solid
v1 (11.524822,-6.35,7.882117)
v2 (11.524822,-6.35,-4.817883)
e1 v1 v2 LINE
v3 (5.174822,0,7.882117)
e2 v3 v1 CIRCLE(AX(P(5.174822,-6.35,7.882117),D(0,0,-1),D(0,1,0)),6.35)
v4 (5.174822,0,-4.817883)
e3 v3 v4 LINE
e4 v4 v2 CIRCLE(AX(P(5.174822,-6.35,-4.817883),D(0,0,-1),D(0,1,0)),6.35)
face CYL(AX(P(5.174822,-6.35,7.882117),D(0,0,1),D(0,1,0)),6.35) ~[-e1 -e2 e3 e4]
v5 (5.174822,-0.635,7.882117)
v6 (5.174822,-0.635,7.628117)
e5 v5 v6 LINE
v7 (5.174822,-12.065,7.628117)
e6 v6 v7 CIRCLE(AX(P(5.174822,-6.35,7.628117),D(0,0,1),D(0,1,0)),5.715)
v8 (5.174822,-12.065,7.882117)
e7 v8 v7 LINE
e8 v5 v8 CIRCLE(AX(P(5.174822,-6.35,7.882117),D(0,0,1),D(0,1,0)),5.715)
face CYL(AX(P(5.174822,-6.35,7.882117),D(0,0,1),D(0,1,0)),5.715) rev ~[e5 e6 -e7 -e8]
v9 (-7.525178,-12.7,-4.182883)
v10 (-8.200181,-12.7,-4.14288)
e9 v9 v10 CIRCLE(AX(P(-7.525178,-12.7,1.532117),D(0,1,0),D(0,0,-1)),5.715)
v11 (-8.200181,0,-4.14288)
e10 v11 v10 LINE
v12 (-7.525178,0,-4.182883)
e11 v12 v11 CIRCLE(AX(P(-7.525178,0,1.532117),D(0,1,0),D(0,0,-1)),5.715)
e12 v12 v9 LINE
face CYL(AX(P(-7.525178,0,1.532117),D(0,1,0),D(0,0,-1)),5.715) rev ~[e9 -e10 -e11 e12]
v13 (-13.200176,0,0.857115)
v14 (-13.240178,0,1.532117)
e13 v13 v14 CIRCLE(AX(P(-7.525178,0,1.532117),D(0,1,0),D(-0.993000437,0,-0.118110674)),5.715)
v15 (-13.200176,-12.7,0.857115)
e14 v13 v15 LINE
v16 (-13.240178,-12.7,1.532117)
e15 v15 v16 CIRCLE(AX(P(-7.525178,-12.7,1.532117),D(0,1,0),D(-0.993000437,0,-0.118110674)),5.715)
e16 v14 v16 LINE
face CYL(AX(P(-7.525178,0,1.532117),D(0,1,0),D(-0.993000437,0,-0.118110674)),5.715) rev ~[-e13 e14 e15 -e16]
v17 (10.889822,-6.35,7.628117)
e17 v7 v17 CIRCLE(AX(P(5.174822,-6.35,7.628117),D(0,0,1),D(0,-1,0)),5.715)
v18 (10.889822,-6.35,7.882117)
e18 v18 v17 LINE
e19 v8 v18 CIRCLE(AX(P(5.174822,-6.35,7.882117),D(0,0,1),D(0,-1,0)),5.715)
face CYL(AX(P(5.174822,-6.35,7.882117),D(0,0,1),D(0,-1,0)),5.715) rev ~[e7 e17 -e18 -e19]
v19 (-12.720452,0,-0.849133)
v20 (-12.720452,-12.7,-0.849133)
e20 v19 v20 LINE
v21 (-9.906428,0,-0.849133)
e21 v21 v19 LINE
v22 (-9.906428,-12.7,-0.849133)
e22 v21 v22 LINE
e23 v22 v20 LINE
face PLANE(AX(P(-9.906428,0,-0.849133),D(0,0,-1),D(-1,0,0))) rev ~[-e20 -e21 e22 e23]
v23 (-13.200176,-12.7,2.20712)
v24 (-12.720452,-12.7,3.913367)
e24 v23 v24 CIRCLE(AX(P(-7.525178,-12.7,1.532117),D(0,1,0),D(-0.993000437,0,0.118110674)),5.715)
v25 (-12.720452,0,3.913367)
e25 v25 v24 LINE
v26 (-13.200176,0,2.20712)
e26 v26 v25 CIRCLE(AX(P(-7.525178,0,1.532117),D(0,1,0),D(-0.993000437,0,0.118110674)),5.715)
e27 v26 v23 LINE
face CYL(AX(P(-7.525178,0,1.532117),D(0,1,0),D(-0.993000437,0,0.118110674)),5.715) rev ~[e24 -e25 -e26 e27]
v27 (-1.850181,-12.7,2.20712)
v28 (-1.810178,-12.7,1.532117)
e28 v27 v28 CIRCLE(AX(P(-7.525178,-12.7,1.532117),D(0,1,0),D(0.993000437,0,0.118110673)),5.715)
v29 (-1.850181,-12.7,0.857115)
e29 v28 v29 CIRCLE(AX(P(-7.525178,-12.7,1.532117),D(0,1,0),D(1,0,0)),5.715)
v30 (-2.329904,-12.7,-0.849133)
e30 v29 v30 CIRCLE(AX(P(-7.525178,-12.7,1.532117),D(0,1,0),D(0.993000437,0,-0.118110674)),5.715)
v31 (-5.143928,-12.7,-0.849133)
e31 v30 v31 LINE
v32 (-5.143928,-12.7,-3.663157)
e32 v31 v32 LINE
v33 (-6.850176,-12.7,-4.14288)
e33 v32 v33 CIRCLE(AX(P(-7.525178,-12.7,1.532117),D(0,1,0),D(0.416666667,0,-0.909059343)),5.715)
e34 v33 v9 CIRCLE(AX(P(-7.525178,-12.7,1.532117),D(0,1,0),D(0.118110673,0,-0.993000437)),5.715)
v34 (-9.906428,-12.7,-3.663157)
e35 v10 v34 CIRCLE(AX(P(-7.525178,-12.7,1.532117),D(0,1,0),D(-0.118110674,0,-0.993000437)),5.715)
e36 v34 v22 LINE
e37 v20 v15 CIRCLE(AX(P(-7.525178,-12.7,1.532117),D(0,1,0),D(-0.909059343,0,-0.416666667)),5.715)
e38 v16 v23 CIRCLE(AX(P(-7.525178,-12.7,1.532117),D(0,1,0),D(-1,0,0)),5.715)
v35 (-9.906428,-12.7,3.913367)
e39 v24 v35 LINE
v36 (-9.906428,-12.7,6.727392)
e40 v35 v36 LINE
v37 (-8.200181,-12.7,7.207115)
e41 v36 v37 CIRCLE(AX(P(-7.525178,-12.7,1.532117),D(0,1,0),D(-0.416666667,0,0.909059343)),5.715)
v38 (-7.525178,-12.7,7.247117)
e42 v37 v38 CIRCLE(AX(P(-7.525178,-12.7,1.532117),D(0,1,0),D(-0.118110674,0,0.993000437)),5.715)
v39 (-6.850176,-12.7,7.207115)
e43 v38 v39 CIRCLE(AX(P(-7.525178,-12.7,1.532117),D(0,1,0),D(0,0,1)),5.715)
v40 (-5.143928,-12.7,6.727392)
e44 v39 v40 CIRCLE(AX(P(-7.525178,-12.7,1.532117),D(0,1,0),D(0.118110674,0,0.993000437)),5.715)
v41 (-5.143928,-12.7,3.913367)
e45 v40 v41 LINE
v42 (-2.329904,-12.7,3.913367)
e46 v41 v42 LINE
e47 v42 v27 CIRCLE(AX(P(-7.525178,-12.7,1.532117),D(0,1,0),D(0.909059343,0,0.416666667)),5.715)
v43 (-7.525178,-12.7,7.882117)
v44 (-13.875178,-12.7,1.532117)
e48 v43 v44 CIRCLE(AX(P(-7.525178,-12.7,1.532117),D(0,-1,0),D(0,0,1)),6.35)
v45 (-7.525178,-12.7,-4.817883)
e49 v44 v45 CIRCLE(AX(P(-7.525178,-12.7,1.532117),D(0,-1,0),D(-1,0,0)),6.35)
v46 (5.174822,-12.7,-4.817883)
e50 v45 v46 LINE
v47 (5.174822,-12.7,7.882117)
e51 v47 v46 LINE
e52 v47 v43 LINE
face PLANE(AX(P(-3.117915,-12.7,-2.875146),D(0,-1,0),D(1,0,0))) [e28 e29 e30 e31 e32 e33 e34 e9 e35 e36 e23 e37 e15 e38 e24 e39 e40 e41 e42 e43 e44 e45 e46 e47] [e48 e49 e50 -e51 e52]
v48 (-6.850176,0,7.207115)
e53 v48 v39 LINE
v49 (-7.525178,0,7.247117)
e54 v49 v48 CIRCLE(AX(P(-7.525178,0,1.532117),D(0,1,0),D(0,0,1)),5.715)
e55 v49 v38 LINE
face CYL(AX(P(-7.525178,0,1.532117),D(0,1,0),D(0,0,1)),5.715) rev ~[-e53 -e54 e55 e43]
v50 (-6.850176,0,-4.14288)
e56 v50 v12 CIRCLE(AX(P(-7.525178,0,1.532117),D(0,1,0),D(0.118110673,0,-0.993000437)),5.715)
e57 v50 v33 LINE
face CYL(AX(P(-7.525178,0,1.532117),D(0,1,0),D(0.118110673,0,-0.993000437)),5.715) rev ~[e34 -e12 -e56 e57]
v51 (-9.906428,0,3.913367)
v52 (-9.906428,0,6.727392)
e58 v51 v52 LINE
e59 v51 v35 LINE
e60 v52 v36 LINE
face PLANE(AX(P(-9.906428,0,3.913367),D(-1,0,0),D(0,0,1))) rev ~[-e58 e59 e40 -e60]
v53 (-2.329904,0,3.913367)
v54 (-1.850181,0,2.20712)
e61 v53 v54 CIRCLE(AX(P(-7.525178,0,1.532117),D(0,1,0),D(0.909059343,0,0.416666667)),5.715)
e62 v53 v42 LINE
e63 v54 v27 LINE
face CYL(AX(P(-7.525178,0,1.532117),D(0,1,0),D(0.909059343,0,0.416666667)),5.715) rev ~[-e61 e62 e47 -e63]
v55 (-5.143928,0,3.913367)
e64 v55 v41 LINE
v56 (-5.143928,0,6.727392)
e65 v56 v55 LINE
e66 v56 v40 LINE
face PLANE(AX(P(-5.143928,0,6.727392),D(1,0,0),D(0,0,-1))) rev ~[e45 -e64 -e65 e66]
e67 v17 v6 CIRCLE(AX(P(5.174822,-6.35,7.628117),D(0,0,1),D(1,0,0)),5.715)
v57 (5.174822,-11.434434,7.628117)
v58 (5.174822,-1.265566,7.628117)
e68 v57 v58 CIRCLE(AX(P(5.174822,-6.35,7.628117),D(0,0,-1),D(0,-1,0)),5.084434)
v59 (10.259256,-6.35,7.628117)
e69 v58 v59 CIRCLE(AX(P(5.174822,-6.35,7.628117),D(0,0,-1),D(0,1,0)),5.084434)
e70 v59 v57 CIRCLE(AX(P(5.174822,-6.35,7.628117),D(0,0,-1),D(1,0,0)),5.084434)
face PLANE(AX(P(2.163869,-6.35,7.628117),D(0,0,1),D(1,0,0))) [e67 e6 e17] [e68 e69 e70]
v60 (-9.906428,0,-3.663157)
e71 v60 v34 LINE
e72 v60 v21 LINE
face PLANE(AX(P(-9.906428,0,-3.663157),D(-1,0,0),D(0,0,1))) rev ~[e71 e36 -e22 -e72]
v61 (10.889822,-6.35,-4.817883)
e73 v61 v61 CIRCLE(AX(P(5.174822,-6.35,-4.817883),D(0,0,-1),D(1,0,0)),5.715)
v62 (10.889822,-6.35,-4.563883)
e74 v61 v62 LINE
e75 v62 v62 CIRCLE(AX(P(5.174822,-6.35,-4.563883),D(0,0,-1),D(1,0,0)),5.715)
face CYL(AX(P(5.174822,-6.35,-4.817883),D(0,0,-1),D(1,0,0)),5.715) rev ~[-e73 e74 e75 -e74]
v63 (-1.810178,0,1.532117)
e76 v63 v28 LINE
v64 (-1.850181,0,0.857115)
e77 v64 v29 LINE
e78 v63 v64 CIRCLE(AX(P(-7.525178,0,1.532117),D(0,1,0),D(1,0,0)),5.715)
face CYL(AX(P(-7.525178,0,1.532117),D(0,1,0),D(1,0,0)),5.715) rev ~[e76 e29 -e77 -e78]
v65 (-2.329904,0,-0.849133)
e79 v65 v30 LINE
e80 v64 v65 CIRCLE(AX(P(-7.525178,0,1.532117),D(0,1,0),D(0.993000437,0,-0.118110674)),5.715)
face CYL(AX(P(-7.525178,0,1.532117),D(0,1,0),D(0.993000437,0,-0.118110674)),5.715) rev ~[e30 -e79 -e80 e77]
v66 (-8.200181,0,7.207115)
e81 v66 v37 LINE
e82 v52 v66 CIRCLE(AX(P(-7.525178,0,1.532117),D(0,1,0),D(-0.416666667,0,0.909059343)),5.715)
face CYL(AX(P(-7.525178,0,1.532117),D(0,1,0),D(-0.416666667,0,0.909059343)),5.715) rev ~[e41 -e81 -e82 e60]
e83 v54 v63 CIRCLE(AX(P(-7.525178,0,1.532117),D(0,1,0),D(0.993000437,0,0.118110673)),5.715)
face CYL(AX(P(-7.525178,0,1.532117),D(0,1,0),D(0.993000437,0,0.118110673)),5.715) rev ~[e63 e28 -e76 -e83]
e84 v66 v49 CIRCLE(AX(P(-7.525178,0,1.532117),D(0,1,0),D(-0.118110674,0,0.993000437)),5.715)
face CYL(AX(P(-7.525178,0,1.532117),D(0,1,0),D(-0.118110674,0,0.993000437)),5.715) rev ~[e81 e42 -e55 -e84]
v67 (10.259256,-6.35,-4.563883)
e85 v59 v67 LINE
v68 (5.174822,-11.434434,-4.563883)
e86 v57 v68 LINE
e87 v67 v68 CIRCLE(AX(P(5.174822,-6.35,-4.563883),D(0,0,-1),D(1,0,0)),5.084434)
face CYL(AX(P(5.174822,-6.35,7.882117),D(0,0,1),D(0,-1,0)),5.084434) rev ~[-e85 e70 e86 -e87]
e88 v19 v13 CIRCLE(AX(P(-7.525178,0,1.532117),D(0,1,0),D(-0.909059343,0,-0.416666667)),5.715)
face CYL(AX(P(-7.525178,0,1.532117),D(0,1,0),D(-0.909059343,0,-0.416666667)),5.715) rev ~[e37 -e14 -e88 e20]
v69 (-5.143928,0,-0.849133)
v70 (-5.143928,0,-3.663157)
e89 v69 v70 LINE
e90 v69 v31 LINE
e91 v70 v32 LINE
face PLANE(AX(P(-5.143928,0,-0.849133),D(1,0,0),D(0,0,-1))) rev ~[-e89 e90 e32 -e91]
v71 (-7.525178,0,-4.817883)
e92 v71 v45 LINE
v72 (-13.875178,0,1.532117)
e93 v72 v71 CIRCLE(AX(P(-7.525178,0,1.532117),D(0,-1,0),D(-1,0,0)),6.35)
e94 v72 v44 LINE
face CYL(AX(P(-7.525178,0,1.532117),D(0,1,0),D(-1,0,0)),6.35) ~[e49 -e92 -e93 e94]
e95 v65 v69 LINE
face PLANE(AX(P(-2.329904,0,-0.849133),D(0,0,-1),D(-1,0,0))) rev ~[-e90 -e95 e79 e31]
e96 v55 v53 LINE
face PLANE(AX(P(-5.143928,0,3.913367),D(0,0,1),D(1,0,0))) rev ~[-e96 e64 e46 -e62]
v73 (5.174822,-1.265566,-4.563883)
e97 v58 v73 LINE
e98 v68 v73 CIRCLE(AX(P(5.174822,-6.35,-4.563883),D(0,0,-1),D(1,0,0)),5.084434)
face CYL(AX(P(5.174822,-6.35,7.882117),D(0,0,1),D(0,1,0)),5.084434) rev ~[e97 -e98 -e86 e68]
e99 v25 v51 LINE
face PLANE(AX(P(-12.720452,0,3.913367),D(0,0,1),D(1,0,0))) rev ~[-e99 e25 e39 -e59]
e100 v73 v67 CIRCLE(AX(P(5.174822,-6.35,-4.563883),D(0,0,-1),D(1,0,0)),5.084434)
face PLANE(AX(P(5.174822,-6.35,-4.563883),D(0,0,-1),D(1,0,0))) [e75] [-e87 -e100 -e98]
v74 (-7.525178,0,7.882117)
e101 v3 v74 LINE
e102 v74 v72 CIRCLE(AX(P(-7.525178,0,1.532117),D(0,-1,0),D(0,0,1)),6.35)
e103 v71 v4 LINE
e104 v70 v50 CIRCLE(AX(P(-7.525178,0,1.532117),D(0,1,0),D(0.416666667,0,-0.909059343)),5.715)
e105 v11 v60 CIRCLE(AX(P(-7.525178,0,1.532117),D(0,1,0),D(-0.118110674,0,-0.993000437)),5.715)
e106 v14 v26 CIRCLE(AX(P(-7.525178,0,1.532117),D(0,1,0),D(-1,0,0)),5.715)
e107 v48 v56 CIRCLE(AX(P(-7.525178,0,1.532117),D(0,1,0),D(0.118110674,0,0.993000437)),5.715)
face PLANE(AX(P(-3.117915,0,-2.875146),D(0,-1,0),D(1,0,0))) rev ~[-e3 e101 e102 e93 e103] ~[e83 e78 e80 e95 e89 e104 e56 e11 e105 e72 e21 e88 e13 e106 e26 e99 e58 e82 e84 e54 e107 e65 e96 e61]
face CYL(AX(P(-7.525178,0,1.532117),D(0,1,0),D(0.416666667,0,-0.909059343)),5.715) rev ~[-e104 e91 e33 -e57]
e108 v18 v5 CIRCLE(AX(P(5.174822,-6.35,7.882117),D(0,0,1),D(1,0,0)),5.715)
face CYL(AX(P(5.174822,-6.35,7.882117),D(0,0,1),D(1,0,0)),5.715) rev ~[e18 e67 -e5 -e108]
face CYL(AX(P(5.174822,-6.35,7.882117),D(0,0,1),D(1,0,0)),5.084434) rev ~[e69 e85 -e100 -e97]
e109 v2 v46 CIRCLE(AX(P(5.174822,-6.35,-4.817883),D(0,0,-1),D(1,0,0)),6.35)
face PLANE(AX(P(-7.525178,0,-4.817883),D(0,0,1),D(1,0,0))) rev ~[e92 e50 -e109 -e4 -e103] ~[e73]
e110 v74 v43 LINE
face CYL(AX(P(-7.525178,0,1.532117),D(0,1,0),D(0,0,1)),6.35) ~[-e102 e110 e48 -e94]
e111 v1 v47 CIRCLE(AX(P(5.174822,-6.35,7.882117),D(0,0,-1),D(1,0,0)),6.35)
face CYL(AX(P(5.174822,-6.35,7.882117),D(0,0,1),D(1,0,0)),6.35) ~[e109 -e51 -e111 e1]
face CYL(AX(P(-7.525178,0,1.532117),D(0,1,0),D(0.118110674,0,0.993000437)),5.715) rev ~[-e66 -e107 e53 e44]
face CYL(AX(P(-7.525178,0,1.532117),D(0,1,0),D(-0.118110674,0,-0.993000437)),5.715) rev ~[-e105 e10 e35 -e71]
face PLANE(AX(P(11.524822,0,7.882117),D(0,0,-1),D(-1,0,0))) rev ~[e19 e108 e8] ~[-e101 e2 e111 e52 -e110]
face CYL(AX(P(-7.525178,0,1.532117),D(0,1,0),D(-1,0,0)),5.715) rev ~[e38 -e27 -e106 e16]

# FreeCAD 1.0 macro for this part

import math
import FreeCAD as App
import Part
import Sketcher
Q = App.Units.Quantity

doc = App.newDocument("Part")
params = doc.addObject("Spreadsheet::Sheet", "Params")
for row, (alias, value) in enumerate([
    ("sketch1_radius", "0.25 in"),
    ("sketch1_radius2", "0.225 in"),
    ("sketch1_width", "0.75 in"),
    ("pad1_length", "0.5 in"),
    ("sketch2_radius", "0.25 in"),
    ("pocket1_length", "0.5 in"),
    ("sketch3_radius", "0.225 in"),
    ("pocket2_length", "0.01 in"),
    ("sketch4_diameter", "0.45 in"),
    ("pocket3_length", "0.01 in"),
], start=1):
    params.set(f"A{row}", alias)
    params.set(f"B{row}", "=" + value)
    params.setAlias(f"B{row}", alias)

body = doc.addObject("PartDesign::Body", "Body")

sketch1 = body.newObject("Sketcher::SketchObject", "Sketch")
sketch1.AttachmentSupport = (doc.getObject("XZ_Plane"), [""])
sketch1.MapMode = "FlatFace"
sketch1.addGeometry(Part.ArcOfCircle(Part.Circle(App.Vector(-7.525178, 1.532117, 0), App.Vector(0, 0, 1), 6.35), math.radians(90), math.radians(180)), False)
sketch1.addGeometry(Part.ArcOfCircle(Part.Circle(App.Vector(-7.525178, 1.532117, 0), App.Vector(0, 0, 1), 6.35), math.radians(180), math.radians(270)), False)
sketch1.addGeometry(Part.LineSegment(App.Vector(-7.525178, -4.817883, 0), App.Vector(11.524822, -4.817883, 0)), False)
sketch1.addGeometry(Part.LineSegment(App.Vector(11.524822, -4.817883, 0), App.Vector(11.524822, 7.882117, 0)), False)
sketch1.addGeometry(Part.LineSegment(App.Vector(11.524822, 7.882117, 0), App.Vector(-7.525178, 7.882117, 0)), False)
sketch1.addGeometry(Part.ArcOfCircle(Part.Circle(App.Vector(-7.525178, 1.532117, 0), App.Vector(0, 0, 1), 5.715), math.radians(0), math.radians(6.783077)), False)
sketch1.addGeometry(Part.ArcOfCircle(Part.Circle(App.Vector(-7.525178, 1.532117, 0), App.Vector(0, 0, 1), 5.715), math.radians(-6.783077), math.radians(0)), False)
sketch1.addGeometry(Part.ArcOfCircle(Part.Circle(App.Vector(-7.525178, 1.532117, 0), App.Vector(0, 0, 1), 5.715), math.radians(-24.624318), math.radians(-6.783077)), False)
sketch1.addGeometry(Part.LineSegment(App.Vector(-2.329904, -0.849133, 0), App.Vector(-5.143928, -0.849133, 0)), False)
sketch1.addGeometry(Part.LineSegment(App.Vector(-5.143928, -0.849133, 0), App.Vector(-5.143928, -3.663157, 0)), False)
sketch1.addGeometry(Part.ArcOfCircle(Part.Circle(App.Vector(-7.525178, 1.532117, 0), App.Vector(0, 0, 1), 5.715), math.radians(-83.216923), math.radians(-65.375682)), False)
sketch1.addGeometry(Part.ArcOfCircle(Part.Circle(App.Vector(-7.525178, 1.532117, 0), App.Vector(0, 0, 1), 5.715), math.radians(-90), math.radians(-83.216923)), False)
sketch1.addGeometry(Part.ArcOfCircle(Part.Circle(App.Vector(-7.525178, 1.532117, 0), App.Vector(0, 0, 1), 5.715), math.radians(-96.783077), math.radians(-90)), False)
sketch1.addGeometry(Part.ArcOfCircle(Part.Circle(App.Vector(-7.525178, 1.532117, 0), App.Vector(0, 0, 1), 5.715), math.radians(-114.624318), math.radians(-96.783077)), False)
sketch1.addGeometry(Part.LineSegment(App.Vector(-9.906428, -3.663157, 0), App.Vector(-9.906428, -0.849133, 0)), False)
sketch1.addGeometry(Part.LineSegment(App.Vector(-9.906428, -0.849133, 0), App.Vector(-12.720452, -0.849133, 0)), False)
sketch1.addGeometry(Part.ArcOfCircle(Part.Circle(App.Vector(-7.525178, 1.532117, 0), App.Vector(0, 0, 1), 5.715), math.radians(-173.216923), math.radians(-155.375682)), False)
sketch1.addGeometry(Part.ArcOfCircle(Part.Circle(App.Vector(-7.525178, 1.532117, 0), App.Vector(0, 0, 1), 5.715), math.radians(180), math.radians(186.783077)), False)
sketch1.addGeometry(Part.ArcOfCircle(Part.Circle(App.Vector(-7.525178, 1.532117, 0), App.Vector(0, 0, 1), 5.715), math.radians(173.216923), math.radians(180)), False)
sketch1.addGeometry(Part.ArcOfCircle(Part.Circle(App.Vector(-7.525178, 1.532117, 0), App.Vector(0, 0, 1), 5.715), math.radians(155.375682), math.radians(173.216923)), False)
sketch1.addGeometry(Part.LineSegment(App.Vector(-12.720452, 3.913367, 0), App.Vector(-9.906428, 3.913367, 0)), False)
sketch1.addGeometry(Part.LineSegment(App.Vector(-9.906428, 3.913367, 0), App.Vector(-9.906428, 6.727392, 0)), False)
sketch1.addGeometry(Part.ArcOfCircle(Part.Circle(App.Vector(-7.525178, 1.532117, 0), App.Vector(0, 0, 1), 5.715), math.radians(96.783077), math.radians(114.624318)), False)
sketch1.addGeometry(Part.ArcOfCircle(Part.Circle(App.Vector(-7.525178, 1.532117, 0), App.Vector(0, 0, 1), 5.715), math.radians(90), math.radians(96.783077)), False)
sketch1.addGeometry(Part.ArcOfCircle(Part.Circle(App.Vector(-7.525178, 1.532117, 0), App.Vector(0, 0, 1), 5.715), math.radians(83.216923), math.radians(90)), False)
sketch1.addGeometry(Part.ArcOfCircle(Part.Circle(App.Vector(-7.525178, 1.532117, 0), App.Vector(0, 0, 1), 5.715), math.radians(65.375682), math.radians(83.216923)), False)
sketch1.addGeometry(Part.LineSegment(App.Vector(-5.143928, 6.727392, 0), App.Vector(-5.143928, 3.913367, 0)), False)
sketch1.addGeometry(Part.LineSegment(App.Vector(-5.143928, 3.913367, 0), App.Vector(-2.329904, 3.913367, 0)), False)
sketch1.addGeometry(Part.ArcOfCircle(Part.Circle(App.Vector(-7.525178, 1.532117, 0), App.Vector(0, 0, 1), 5.715), math.radians(6.783077), math.radians(24.624318)), False)
sketch1.addConstraint(Sketcher.Constraint("Tangent", 0, 2, 1, 1))
sketch1.addConstraint(Sketcher.Constraint("Tangent", 1, 2, 2, 1))
sketch1.addConstraint(Sketcher.Constraint("Coincident", 2, 2, 3, 1))
sketch1.addConstraint(Sketcher.Constraint("Coincident", 3, 2, 4, 1))
sketch1.addConstraint(Sketcher.Constraint("Tangent", 4, 2, 0, 1))
sketch1.addConstraint(Sketcher.Constraint("Tangent", 5, 1, 6, 2))
sketch1.addConstraint(Sketcher.Constraint("Tangent", 6, 1, 7, 2))
sketch1.addConstraint(Sketcher.Constraint("Coincident", 7, 1, 8, 1))
sketch1.addConstraint(Sketcher.Constraint("Coincident", 8, 2, 9, 1))
sketch1.addConstraint(Sketcher.Constraint("Coincident", 9, 2, 10, 2))
sketch1.addConstraint(Sketcher.Constraint("Tangent", 10, 1, 11, 2))
sketch1.addConstraint(Sketcher.Constraint("Tangent", 11, 1, 12, 2))
sketch1.addConstraint(Sketcher.Constraint("Tangent", 12, 1, 13, 2))
sketch1.addConstraint(Sketcher.Constraint("Coincident", 13, 1, 14, 1))
sketch1.addConstraint(Sketcher.Constraint("Coincident", 14, 2, 15, 1))
sketch1.addConstraint(Sketcher.Constraint("Coincident", 15, 2, 16, 2))
sketch1.addConstraint(Sketcher.Constraint("Tangent", 16, 1, 17, 2))
sketch1.addConstraint(Sketcher.Constraint("Tangent", 17, 1, 18, 2))
sketch1.addConstraint(Sketcher.Constraint("Tangent", 18, 1, 19, 2))
sketch1.addConstraint(Sketcher.Constraint("Coincident", 19, 1, 20, 1))
sketch1.addConstraint(Sketcher.Constraint("Coincident", 20, 2, 21, 1))
sketch1.addConstraint(Sketcher.Constraint("Coincident", 21, 2, 22, 2))
sketch1.addConstraint(Sketcher.Constraint("Tangent", 22, 1, 23, 2))
sketch1.addConstraint(Sketcher.Constraint("Tangent", 23, 1, 24, 2))
sketch1.addConstraint(Sketcher.Constraint("Tangent", 24, 1, 25, 2))
sketch1.addConstraint(Sketcher.Constraint("Coincident", 25, 1, 26, 1))
sketch1.addConstraint(Sketcher.Constraint("Coincident", 26, 2, 27, 1))
sketch1.addConstraint(Sketcher.Constraint("Coincident", 27, 2, 28, 2))
sketch1.addConstraint(Sketcher.Constraint("Tangent", 28, 1, 5, 2))
sketch1.addConstraint(Sketcher.Constraint("Horizontal", 2))
sketch1.addConstraint(Sketcher.Constraint("Vertical", 3))
sketch1.addConstraint(Sketcher.Constraint("Horizontal", 4))
sketch1.addConstraint(Sketcher.Constraint("Horizontal", 8))
sketch1.addConstraint(Sketcher.Constraint("Vertical", 9))
sketch1.addConstraint(Sketcher.Constraint("Vertical", 14))
sketch1.addConstraint(Sketcher.Constraint("Horizontal", 15))
sketch1.addConstraint(Sketcher.Constraint("Horizontal", 20))
sketch1.addConstraint(Sketcher.Constraint("Vertical", 21))
sketch1.addConstraint(Sketcher.Constraint("Vertical", 26))
sketch1.addConstraint(Sketcher.Constraint("Horizontal", 27))
sketch1.addConstraint(Sketcher.Constraint("Coincident", 5, 3, 0, 3))
sketch1.addConstraint(Sketcher.Constraint("Coincident", 7, 3, 0, 3))
sketch1.addConstraint(Sketcher.Constraint("Coincident", 10, 3, 0, 3))
sketch1.addConstraint(Sketcher.Constraint("Coincident", 12, 3, 0, 3))
sketch1.addConstraint(Sketcher.Constraint("Coincident", 16, 3, 0, 3))
sketch1.addConstraint(Sketcher.Constraint("Coincident", 18, 3, 0, 3))
sketch1.addConstraint(Sketcher.Constraint("Coincident", 22, 3, 0, 3))
sketch1.addConstraint(Sketcher.Constraint("Coincident", 24, 3, 0, 3))
sketch1.addConstraint(Sketcher.Constraint("Equal", 0, 1))
sketch1.addConstraint(Sketcher.Constraint("Equal", 7, 10))
sketch1.addConstraint(Sketcher.Constraint("Equal", 12, 13))
sketch1.addConstraint(Sketcher.Constraint("Equal", 13, 16))
sketch1.addConstraint(Sketcher.Constraint("Equal", 18, 19))
sketch1.addConstraint(Sketcher.Constraint("Equal", 19, 22))
sketch1.addConstraint(Sketcher.Constraint("Equal", 24, 25))
sketch1.addConstraint(Sketcher.Constraint("Equal", 25, 28))
sketch1.addConstraint(Sketcher.Constraint("Horizontal", 28, 3, 0, 2))
sketch1.addConstraint(Sketcher.Constraint("Horizontal", 0, 2, 5, 1))
sketch1.addConstraint(Sketcher.Constraint("Horizontal", 10, 1, 12, 1))
sketch1.addConstraint(Sketcher.Constraint("Horizontal", 9, 2, 13, 1))
sketch1.addConstraint(Sketcher.Constraint("Horizontal", 8, 2, 14, 2))
sketch1.addConstraint(Sketcher.Constraint("Horizontal", 6, 1, 16, 1))
sketch1.addConstraint(Sketcher.Constraint("Horizontal", 5, 1, 17, 1))
sketch1.addConstraint(Sketcher.Constraint("Horizontal", 22, 1, 24, 1))
sketch1.addConstraint(Sketcher.Constraint("Horizontal", 21, 2, 25, 1))
sketch1.addConstraint(Sketcher.Constraint("Horizontal", 20, 2, 26, 2))
sketch1.addConstraint(Sketcher.Constraint("Horizontal", 18, 1, 28, 1))
sketch1.addConstraint(Sketcher.Constraint("Vertical", 4, 2, 11, 1))
sketch1.addConstraint(Sketcher.Constraint("Vertical", 16, 1, 18, 1))
sketch1.addConstraint(Sketcher.Constraint("Vertical", 15, 2, 19, 1))
sketch1.addConstraint(Sketcher.Constraint("Vertical", 14, 2, 20, 2))
sketch1.addConstraint(Sketcher.Constraint("Vertical", 12, 1, 22, 1))
sketch1.addConstraint(Sketcher.Constraint("Vertical", 11, 1, 23, 1))
sketch1.addConstraint(Sketcher.Constraint("Equal", 27, 9))
sketch1.addConstraint(Sketcher.Constraint("Radius", 0, Q("0.25 in")))
sketch1.addConstraint(Sketcher.Constraint("Radius", 5, Q("0.225 in")))
sketch1.addConstraint(Sketcher.Constraint("DistanceX", 2, 1, 2, 2, Q("0.75 in")))
sketch1.addConstraint(Sketcher.Constraint("DistanceY", 7, 1, 5, 1, Q("0.09375 in")))
sketch1.addConstraint(Sketcher.Constraint("DistanceX", 0, 3, -1, 1, Q("7.525178 mm")))
sketch1.addConstraint(Sketcher.Constraint("DistanceX", 6, 1, -1, 1, Q("1.850181 mm")))
sketch1.addConstraint(Sketcher.Constraint("DistanceY", 10, 1, -1, 1, Q("4.14288 mm")))
sketch1.addConstraint(Sketcher.Constraint("DistanceX", 12, 1, -1, 1, Q("8.200181 mm")))
sketch1.setExpression("Constraints[74]", "Params.sketch1_radius")
sketch1.setExpression("Constraints[75]", "Params.sketch1_radius2")
sketch1.setExpression("Constraints[76]", "Params.sketch1_width")
pad1 = body.newObject("PartDesign::Pad", "Pad")
pad1.Profile = sketch1
pad1.setExpression("Length", "Params.pad1_length")

sketch2 = body.newObject("Sketcher::SketchObject", "Sketch001")
sketch2.AttachmentSupport = (doc.getObject("XY_Plane"), [""])
sketch2.MapMode = "FlatFace"
sketch2.AttachmentOffset = App.Placement(App.Vector(0, 0, 7.882117), App.Rotation())
sketch2.addGeometry(Part.LineSegment(App.Vector(11.524822, 0, 0), App.Vector(5.174822, 0, 0)), False)
sketch2.addGeometry(Part.ArcOfCircle(Part.Circle(App.Vector(5.174822, -6.35, 0), App.Vector(0, 0, 1), 6.35), math.radians(0), math.radians(90)), False)
sketch2.addGeometry(Part.LineSegment(App.Vector(11.524822, -6.35, 0), App.Vector(11.524822, 0, 0)), False)
sketch2.addGeometry(Part.LineSegment(App.Vector(11.524822, -12.7, 0), App.Vector(11.524822, -6.35, 0)), False)
sketch2.addGeometry(Part.ArcOfCircle(Part.Circle(App.Vector(5.174822, -6.35, 0), App.Vector(0, 0, 1), 6.35), math.radians(-90), math.radians(0)), False)
sketch2.addGeometry(Part.LineSegment(App.Vector(5.174822, -12.7, 0), App.Vector(11.524822, -12.7, 0)), False)
sketch2.addGeometry(Part.ArcOfCircle(Part.Circle(App.Vector(5.174822, -6.35, 0), App.Vector(0, 0, 1), 5.084434), math.radians(90), math.radians(270)), False)
sketch2.addGeometry(Part.ArcOfCircle(Part.Circle(App.Vector(5.174822, -6.35, 0), App.Vector(0, 0, 1), 5.084434), math.radians(-90), math.radians(0)), False)
sketch2.addGeometry(Part.ArcOfCircle(Part.Circle(App.Vector(5.174822, -6.35, 0), App.Vector(0, 0, 1), 5.084434), math.radians(0), math.radians(90)), False)
sketch2.addConstraint(Sketcher.Constraint("Tangent", 0, 2, 1, 2))
sketch2.addConstraint(Sketcher.Constraint("Tangent", 1, 1, 2, 1))
sketch2.addConstraint(Sketcher.Constraint("Coincident", 2, 2, 0, 1))
sketch2.addConstraint(Sketcher.Constraint("Tangent", 3, 2, 4, 2))
sketch2.addConstraint(Sketcher.Constraint("Tangent", 4, 1, 5, 1))
sketch2.addConstraint(Sketcher.Constraint("Coincident", 5, 2, 3, 1))
sketch2.addConstraint(Sketcher.Constraint("Tangent", 6, 2, 7, 1))
sketch2.addConstraint(Sketcher.Constraint("Tangent", 7, 2, 8, 1))
sketch2.addConstraint(Sketcher.Constraint("Tangent", 8, 2, 6, 1))
sketch2.addConstraint(Sketcher.Constraint("Horizontal", 0))
sketch2.addConstraint(Sketcher.Constraint("Vertical", 2))
sketch2.addConstraint(Sketcher.Constraint("Vertical", 3))
sketch2.addConstraint(Sketcher.Constraint("Horizontal", 5))
sketch2.addConstraint(Sketcher.Constraint("Coincident", 4, 3, 1, 3))
sketch2.addConstraint(Sketcher.Constraint("Coincident", 6, 3, 1, 3))
sketch2.addConstraint(Sketcher.Constraint("Equal", 1, 4))
sketch2.addConstraint(Sketcher.Constraint("PointOnObject", 0, 2, -1))
sketch2.addConstraint(Sketcher.Constraint("Horizontal", 3, 2, 7, 2))
sketch2.addConstraint(Sketcher.Constraint("Vertical", 4, 1, 6, 2))
sketch2.addConstraint(Sketcher.Constraint("Vertical", 6, 2, 8, 2))
sketch2.addConstraint(Sketcher.Constraint("Radius", 1, Q("0.25 in")))
sketch2.addConstraint(Sketcher.Constraint("Radius", 6, Q("5.084434 mm")))
sketch2.addConstraint(Sketcher.Constraint("DistanceX", -1, 1, 1, 3, Q("5.174822 mm")))
sketch2.setExpression("Constraints[20]", "Params.sketch2_radius")
pocket1 = body.newObject("PartDesign::Pocket", "Pocket")
pocket1.Profile = sketch2
pocket1.setExpression("Length", "Params.pocket1_length")

sketch3 = body.newObject("Sketcher::SketchObject", "Sketch002")
sketch3.AttachmentSupport = (doc.getObject("XY_Plane"), [""])
sketch3.MapMode = "FlatFace"
sketch3.AttachmentOffset = App.Placement(App.Vector(0, 0, 7.882117), App.Rotation())
sketch3.addGeometry(Part.ArcOfCircle(Part.Circle(App.Vector(5.174822, -6.35, 0), App.Vector(0, 0, 1), 5.715), math.radians(90), math.radians(270)), False)
sketch3.addGeometry(Part.ArcOfCircle(Part.Circle(App.Vector(5.174822, -6.35, 0), App.Vector(0, 0, 1), 5.715), math.radians(-90), math.radians(0)), False)
sketch3.addGeometry(Part.ArcOfCircle(Part.Circle(App.Vector(5.174822, -6.35, 0), App.Vector(0, 0, 1), 5.715), math.radians(0), math.radians(90)), False)
sketch3.addGeometry(Part.ArcOfCircle(Part.Circle(App.Vector(5.174822, -6.35, 0), App.Vector(0, 0, 1), 5.084434), math.radians(90), math.radians(270)), False)
sketch3.addGeometry(Part.ArcOfCircle(Part.Circle(App.Vector(5.174822, -6.35, 0), App.Vector(0, 0, 1), 5.084434), math.radians(0), math.radians(90)), False)
sketch3.addGeometry(Part.ArcOfCircle(Part.Circle(App.Vector(5.174822, -6.35, 0), App.Vector(0, 0, 1), 5.084434), math.radians(-90), math.radians(0)), False)
sketch3.addConstraint(Sketcher.Constraint("Tangent", 0, 2, 1, 1))
sketch3.addConstraint(Sketcher.Constraint("Tangent", 1, 2, 2, 1))
sketch3.addConstraint(Sketcher.Constraint("Tangent", 2, 2, 0, 1))
sketch3.addConstraint(Sketcher.Constraint("Tangent", 3, 1, 4, 2))
sketch3.addConstraint(Sketcher.Constraint("Tangent", 4, 1, 5, 2))
sketch3.addConstraint(Sketcher.Constraint("Tangent", 5, 1, 3, 2))
sketch3.addConstraint(Sketcher.Constraint("Coincident", 3, 3, 0, 3))
sketch3.addConstraint(Sketcher.Constraint("Horizontal", 5, 3, 1, 2))
sketch3.addConstraint(Sketcher.Constraint("Horizontal", 1, 2, 4, 1))
sketch3.addConstraint(Sketcher.Constraint("Vertical", 5, 3, 0, 2))
sketch3.addConstraint(Sketcher.Constraint("Vertical", 0, 2, 2, 2))
sketch3.addConstraint(Sketcher.Constraint("Vertical", 2, 2, 3, 1))
sketch3.addConstraint(Sketcher.Constraint("Vertical", 3, 1, 5, 1))
sketch3.addConstraint(Sketcher.Constraint("Radius", 0, Q("0.225 in")))
sketch3.addConstraint(Sketcher.Constraint("DistanceY", 0, 3, -1, 1, Q("0.25 in")))
sketch3.addConstraint(Sketcher.Constraint("Radius", 3, Q("5.084434 mm")))
sketch3.addConstraint(Sketcher.Constraint("DistanceX", -1, 1, 0, 3, Q("5.174822 mm")))
sketch3.setExpression("Constraints[13]", "Params.sketch3_radius")
pocket2 = body.newObject("PartDesign::Pocket", "Pocket001")
pocket2.Profile = sketch3
pocket2.setExpression("Length", "Params.pocket2_length")

sketch4 = body.newObject("Sketcher::SketchObject", "Sketch003")
sketch4.AttachmentSupport = (doc.getObject("XY_Plane"), [""])
sketch4.MapMode = "FlatFace"
sketch4.AttachmentOffset = App.Placement(App.Vector(0, 0, -4.817883), App.Rotation())
sketch4.addGeometry(Part.Circle(App.Vector(5.174822, -6.35, 0), App.Vector(0, 0, 1), 5.715), False)
sketch4.addGeometry(Part.Circle(App.Vector(5.174822, -6.35, 0), App.Vector(0, 0, 1), 5.084434), False)
sketch4.addConstraint(Sketcher.Constraint("Coincident", 1, 3, 0, 3))
sketch4.addConstraint(Sketcher.Constraint("Diameter", 0, Q("0.45 in")))
sketch4.addConstraint(Sketcher.Constraint("DistanceY", 0, 3, -1, 1, Q("0.25 in")))
sketch4.addConstraint(Sketcher.Constraint("Diameter", 1, Q("10.168869 mm")))
sketch4.addConstraint(Sketcher.Constraint("DistanceX", -1, 1, 0, 3, Q("5.174822 mm")))
sketch4.setExpression("Constraints[1]", "Params.sketch4_diameter")
pocket3 = body.newObject("PartDesign::Pocket", "Pocket002")
pocket3.Profile = sketch4
pocket3.setExpression("Length", "Params.pocket3_length")
pocket3.Reversed = True

doc.recompute()
